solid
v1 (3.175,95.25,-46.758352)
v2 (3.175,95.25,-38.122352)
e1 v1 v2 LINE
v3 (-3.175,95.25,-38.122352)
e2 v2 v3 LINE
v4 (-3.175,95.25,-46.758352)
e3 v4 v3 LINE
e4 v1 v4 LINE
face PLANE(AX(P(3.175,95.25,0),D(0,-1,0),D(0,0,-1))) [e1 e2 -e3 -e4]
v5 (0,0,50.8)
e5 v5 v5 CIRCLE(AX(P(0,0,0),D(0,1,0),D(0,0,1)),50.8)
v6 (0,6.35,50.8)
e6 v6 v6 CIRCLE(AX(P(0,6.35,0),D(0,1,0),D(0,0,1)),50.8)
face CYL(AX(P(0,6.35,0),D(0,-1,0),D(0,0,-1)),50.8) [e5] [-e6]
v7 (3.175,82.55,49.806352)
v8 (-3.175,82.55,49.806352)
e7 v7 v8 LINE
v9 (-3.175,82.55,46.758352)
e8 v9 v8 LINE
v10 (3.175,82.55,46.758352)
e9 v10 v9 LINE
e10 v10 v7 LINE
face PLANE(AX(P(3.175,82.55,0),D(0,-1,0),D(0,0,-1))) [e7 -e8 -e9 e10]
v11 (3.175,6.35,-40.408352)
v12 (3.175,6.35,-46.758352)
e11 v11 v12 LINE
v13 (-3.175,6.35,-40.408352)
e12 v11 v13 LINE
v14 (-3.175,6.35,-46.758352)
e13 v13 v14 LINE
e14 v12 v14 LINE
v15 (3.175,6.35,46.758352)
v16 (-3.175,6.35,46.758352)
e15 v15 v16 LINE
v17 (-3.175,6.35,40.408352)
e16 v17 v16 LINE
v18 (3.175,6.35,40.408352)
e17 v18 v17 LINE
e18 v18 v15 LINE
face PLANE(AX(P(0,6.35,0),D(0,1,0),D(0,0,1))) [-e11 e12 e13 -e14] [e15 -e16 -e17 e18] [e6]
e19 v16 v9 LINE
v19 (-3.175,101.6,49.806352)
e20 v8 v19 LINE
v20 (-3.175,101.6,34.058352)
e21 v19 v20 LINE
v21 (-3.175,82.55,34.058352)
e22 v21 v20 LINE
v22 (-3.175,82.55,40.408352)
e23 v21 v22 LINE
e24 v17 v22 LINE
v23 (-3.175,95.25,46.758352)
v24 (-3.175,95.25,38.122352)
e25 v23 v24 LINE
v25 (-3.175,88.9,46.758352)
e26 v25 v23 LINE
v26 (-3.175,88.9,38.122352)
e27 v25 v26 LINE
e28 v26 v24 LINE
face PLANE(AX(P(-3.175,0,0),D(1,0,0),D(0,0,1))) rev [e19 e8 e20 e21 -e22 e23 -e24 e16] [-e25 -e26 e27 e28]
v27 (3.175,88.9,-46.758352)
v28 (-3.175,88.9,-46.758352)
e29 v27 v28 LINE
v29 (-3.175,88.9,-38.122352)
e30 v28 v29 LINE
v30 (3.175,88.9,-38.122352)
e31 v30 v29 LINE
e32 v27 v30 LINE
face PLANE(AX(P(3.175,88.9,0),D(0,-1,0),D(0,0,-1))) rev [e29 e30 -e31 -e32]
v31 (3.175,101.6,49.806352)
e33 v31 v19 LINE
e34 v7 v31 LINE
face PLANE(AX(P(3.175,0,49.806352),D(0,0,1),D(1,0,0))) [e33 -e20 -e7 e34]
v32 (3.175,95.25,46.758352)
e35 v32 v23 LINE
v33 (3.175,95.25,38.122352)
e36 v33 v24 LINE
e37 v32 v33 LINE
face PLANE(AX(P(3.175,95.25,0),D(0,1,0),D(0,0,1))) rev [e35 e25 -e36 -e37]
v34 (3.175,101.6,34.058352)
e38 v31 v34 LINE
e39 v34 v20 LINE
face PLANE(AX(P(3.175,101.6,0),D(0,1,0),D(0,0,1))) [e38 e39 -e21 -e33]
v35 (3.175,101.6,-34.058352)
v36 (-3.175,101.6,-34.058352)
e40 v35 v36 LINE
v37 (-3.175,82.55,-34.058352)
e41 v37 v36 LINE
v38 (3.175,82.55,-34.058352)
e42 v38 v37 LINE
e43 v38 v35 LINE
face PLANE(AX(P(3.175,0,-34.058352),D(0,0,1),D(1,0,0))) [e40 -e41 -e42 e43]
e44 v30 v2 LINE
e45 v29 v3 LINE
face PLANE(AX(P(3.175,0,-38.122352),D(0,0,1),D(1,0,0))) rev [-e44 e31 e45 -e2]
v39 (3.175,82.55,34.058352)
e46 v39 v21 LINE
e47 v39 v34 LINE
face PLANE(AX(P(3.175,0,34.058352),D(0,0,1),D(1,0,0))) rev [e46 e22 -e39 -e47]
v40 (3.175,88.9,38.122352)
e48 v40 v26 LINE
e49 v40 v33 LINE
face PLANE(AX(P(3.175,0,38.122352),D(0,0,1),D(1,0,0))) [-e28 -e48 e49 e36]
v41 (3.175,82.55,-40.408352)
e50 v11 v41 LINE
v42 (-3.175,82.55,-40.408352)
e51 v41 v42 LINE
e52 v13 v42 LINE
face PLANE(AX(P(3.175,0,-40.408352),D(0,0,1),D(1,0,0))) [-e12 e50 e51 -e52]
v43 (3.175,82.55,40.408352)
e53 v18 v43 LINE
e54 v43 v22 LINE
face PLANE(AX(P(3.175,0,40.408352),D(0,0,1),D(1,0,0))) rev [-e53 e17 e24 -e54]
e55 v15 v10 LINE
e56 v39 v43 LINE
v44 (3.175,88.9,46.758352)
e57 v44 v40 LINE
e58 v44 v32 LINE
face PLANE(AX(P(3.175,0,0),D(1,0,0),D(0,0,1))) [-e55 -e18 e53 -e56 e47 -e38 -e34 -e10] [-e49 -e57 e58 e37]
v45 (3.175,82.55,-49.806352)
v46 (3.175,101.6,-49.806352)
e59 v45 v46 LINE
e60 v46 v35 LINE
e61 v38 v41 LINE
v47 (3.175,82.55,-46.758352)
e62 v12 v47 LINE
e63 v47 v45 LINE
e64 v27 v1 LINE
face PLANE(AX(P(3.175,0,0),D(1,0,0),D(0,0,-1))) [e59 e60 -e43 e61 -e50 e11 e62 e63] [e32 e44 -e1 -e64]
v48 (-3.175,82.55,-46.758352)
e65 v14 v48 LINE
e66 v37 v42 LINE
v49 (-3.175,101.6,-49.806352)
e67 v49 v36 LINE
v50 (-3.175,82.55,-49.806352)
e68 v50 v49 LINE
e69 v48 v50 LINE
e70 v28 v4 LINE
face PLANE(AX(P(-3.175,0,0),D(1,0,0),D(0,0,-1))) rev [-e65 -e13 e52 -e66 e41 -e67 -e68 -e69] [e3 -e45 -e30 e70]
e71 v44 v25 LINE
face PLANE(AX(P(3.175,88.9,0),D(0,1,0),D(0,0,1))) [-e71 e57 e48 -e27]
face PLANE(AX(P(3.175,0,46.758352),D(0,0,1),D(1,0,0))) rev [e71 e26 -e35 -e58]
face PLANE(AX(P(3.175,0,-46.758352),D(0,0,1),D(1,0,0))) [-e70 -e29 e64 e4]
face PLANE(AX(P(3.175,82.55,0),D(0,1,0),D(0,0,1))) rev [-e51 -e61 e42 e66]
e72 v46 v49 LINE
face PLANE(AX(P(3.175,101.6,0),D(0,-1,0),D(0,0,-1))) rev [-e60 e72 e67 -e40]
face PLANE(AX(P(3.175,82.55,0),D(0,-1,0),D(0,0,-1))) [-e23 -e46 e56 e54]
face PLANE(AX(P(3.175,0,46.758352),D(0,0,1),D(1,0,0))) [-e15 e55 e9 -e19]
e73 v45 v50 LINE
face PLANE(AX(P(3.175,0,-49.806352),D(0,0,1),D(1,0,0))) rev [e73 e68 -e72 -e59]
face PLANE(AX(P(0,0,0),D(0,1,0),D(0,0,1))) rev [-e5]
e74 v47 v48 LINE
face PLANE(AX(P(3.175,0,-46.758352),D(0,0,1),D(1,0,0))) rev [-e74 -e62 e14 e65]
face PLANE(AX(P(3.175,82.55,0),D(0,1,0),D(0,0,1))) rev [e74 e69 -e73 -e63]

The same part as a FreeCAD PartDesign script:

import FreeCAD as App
import Part
import Sketcher
Q = App.Units.Quantity

doc = App.newDocument("Part")
body = doc.addObject("PartDesign::Body", "Body")

# Sketch on XZ plane
sketch1 = body.newObject("Sketcher::SketchObject", "Sketch")
sketch1.AttachmentSupport = (doc.getObject("XZ_Plane"), [""])
sketch1.MapMode = "FlatFace"
sketch1.addGeometry(Part.Circle(App.Vector(0, 0, 0), App.Vector(0, 0, 1), 50.8), False)
sketch1.addConstraint(Sketcher.Constraint("Coincident", 0, 3, -1, 1))
sketch1.addConstraint(Sketcher.Constraint("Diameter", 0, Q("4 in")))
pad1 = body.newObject("PartDesign::Pad", "Pad")
pad1.Profile = sketch1
pad1.Length = Q("0.25 in")
pad1.Reversed = True

# Sketch on YZ plane
sketch2 = body.newObject("Sketcher::SketchObject", "Sketch001")
sketch2.AttachmentSupport = (doc.getObject("YZ_Plane"), [""])
sketch2.MapMode = "FlatFace"
sketch2.addGeometry(Part.LineSegment(App.Vector(82.55, -40.408352, 0), App.Vector(6.35, -40.408352, 0)), False)
sketch2.addGeometry(Part.LineSegment(App.Vector(6.35, -40.408352, 0), App.Vector(6.35, -46.758352, 0)), False)
sketch2.addGeometry(Part.LineSegment(App.Vector(6.35, -46.758352, 0), App.Vector(82.55, -46.758352, 0)), False)
sketch2.addGeometry(Part.LineSegment(App.Vector(82.55, -46.758352, 0), App.Vector(82.55, -49.806352, 0)), False)
sketch2.addGeometry(Part.LineSegment(App.Vector(82.55, -49.806352, 0), App.Vector(101.6, -49.806352, 0)), False)
sketch2.addGeometry(Part.LineSegment(App.Vector(101.6, -49.806352, 0), App.Vector(101.6, -34.058352, 0)), False)
sketch2.addGeometry(Part.LineSegment(App.Vector(101.6, -34.058352, 0), App.Vector(82.55, -34.058352, 0)), False)
sketch2.addGeometry(Part.LineSegment(App.Vector(82.55, -34.058352, 0), App.Vector(82.55, -40.408352, 0)), False)
sketch2.addGeometry(Part.LineSegment(App.Vector(88.9, -38.122352, 0), App.Vector(95.25, -38.122352, 0)), False)
sketch2.addGeometry(Part.LineSegment(App.Vector(95.25, -38.122352, 0), App.Vector(95.25, -46.758352, 0)), False)
sketch2.addGeometry(Part.LineSegment(App.Vector(95.25, -46.758352, 0), App.Vector(88.9, -46.758352, 0)), False)
sketch2.addGeometry(Part.LineSegment(App.Vector(88.9, -46.758352, 0), App.Vector(88.9, -38.122352, 0)), False)
sketch2.addConstraint(Sketcher.Constraint("Coincident", 0, 2, 1, 1))
sketch2.addConstraint(Sketcher.Constraint("Coincident", 1, 2, 2, 1))
sketch2.addConstraint(Sketcher.Constraint("Coincident", 2, 2, 3, 1))
sketch2.addConstraint(Sketcher.Constraint("Coincident", 3, 2, 4, 1))
sketch2.addConstraint(Sketcher.Constraint("Coincident", 4, 2, 5, 1))
sketch2.addConstraint(Sketcher.Constraint("Coincident", 5, 2, 6, 1))
sketch2.addConstraint(Sketcher.Constraint("Coincident", 6, 2, 7, 1))
sketch2.addConstraint(Sketcher.Constraint("Coincident", 7, 2, 0, 1))
sketch2.addConstraint(Sketcher.Constraint("Coincident", 8, 2, 9, 1))
sketch2.addConstraint(Sketcher.Constraint("Coincident", 9, 2, 10, 1))
sketch2.addConstraint(Sketcher.Constraint("Coincident", 10, 2, 11, 1))
sketch2.addConstraint(Sketcher.Constraint("Coincident", 11, 2, 8, 1))
sketch2.addConstraint(Sketcher.Constraint("Horizontal", 0))
sketch2.addConstraint(Sketcher.Constraint("Vertical", 1))
sketch2.addConstraint(Sketcher.Constraint("Horizontal", 2))
sketch2.addConstraint(Sketcher.Constraint("Vertical", 3))
sketch2.addConstraint(Sketcher.Constraint("Horizontal", 4))
sketch2.addConstraint(Sketcher.Constraint("Vertical", 5))
sketch2.addConstraint(Sketcher.Constraint("Horizontal", 6))
sketch2.addConstraint(Sketcher.Constraint("Vertical", 7))
sketch2.addConstraint(Sketcher.Constraint("Horizontal", 8))
sketch2.addConstraint(Sketcher.Constraint("Vertical", 9))
sketch2.addConstraint(Sketcher.Constraint("Horizontal", 10))
sketch2.addConstraint(Sketcher.Constraint("Vertical", 11))
sketch2.addConstraint(Sketcher.Constraint("Horizontal", 2, 2, 9, 2))
sketch2.addConstraint(Sketcher.Constraint("Vertical", 3, 2, 6, 2))
sketch2.addConstraint(Sketcher.Constraint("Equal", 10, 1))
sketch2.addConstraint(Sketcher.Constraint("Equal", 1, 7))
sketch2.addConstraint(Sketcher.Constraint("DistanceX", 0, 2, 0, 1, Q("3 in")))
sketch2.addConstraint(Sketcher.Constraint("DistanceX", -1, 1, 4, 2, Q("4 in")))
sketch2.addConstraint(Sketcher.Constraint("DistanceX", 4, 1, 4, 2, Q("0.75 in")))
sketch2.addConstraint(Sketcher.Constraint("DistanceX", 8, 1, 8, 2, Q("0.25 in")))
sketch2.addConstraint(Sketcher.Constraint("DistanceY", 3, 2, 3, 1, Q("0.12 in")))
sketch2.addConstraint(Sketcher.Constraint("DistanceY", 9, 2, 9, 1, Q("0.34 in")))
sketch2.addConstraint(Sketcher.Constraint("DistanceX", -1, 1, 10, 2, Q("3.5 in")))
sketch2.addConstraint(Sketcher.Constraint("DistanceY", 3, 2, -1, 1, 49.806352))
pad2 = body.newObject("PartDesign::Pad", "Pad001")
pad2.Profile = sketch2
pad2.Length = Q("0.25 in")
pad2.Midplane = True
doc.recompute()

mirrored = body.newObject("PartDesign::Mirrored", "Mirrored")
mirrored.Originals = [pad2]
mirrored.MirrorPlane = (doc.getObject("XY_Plane"), [""])
body.Tip = mirrored

doc.recompute()
